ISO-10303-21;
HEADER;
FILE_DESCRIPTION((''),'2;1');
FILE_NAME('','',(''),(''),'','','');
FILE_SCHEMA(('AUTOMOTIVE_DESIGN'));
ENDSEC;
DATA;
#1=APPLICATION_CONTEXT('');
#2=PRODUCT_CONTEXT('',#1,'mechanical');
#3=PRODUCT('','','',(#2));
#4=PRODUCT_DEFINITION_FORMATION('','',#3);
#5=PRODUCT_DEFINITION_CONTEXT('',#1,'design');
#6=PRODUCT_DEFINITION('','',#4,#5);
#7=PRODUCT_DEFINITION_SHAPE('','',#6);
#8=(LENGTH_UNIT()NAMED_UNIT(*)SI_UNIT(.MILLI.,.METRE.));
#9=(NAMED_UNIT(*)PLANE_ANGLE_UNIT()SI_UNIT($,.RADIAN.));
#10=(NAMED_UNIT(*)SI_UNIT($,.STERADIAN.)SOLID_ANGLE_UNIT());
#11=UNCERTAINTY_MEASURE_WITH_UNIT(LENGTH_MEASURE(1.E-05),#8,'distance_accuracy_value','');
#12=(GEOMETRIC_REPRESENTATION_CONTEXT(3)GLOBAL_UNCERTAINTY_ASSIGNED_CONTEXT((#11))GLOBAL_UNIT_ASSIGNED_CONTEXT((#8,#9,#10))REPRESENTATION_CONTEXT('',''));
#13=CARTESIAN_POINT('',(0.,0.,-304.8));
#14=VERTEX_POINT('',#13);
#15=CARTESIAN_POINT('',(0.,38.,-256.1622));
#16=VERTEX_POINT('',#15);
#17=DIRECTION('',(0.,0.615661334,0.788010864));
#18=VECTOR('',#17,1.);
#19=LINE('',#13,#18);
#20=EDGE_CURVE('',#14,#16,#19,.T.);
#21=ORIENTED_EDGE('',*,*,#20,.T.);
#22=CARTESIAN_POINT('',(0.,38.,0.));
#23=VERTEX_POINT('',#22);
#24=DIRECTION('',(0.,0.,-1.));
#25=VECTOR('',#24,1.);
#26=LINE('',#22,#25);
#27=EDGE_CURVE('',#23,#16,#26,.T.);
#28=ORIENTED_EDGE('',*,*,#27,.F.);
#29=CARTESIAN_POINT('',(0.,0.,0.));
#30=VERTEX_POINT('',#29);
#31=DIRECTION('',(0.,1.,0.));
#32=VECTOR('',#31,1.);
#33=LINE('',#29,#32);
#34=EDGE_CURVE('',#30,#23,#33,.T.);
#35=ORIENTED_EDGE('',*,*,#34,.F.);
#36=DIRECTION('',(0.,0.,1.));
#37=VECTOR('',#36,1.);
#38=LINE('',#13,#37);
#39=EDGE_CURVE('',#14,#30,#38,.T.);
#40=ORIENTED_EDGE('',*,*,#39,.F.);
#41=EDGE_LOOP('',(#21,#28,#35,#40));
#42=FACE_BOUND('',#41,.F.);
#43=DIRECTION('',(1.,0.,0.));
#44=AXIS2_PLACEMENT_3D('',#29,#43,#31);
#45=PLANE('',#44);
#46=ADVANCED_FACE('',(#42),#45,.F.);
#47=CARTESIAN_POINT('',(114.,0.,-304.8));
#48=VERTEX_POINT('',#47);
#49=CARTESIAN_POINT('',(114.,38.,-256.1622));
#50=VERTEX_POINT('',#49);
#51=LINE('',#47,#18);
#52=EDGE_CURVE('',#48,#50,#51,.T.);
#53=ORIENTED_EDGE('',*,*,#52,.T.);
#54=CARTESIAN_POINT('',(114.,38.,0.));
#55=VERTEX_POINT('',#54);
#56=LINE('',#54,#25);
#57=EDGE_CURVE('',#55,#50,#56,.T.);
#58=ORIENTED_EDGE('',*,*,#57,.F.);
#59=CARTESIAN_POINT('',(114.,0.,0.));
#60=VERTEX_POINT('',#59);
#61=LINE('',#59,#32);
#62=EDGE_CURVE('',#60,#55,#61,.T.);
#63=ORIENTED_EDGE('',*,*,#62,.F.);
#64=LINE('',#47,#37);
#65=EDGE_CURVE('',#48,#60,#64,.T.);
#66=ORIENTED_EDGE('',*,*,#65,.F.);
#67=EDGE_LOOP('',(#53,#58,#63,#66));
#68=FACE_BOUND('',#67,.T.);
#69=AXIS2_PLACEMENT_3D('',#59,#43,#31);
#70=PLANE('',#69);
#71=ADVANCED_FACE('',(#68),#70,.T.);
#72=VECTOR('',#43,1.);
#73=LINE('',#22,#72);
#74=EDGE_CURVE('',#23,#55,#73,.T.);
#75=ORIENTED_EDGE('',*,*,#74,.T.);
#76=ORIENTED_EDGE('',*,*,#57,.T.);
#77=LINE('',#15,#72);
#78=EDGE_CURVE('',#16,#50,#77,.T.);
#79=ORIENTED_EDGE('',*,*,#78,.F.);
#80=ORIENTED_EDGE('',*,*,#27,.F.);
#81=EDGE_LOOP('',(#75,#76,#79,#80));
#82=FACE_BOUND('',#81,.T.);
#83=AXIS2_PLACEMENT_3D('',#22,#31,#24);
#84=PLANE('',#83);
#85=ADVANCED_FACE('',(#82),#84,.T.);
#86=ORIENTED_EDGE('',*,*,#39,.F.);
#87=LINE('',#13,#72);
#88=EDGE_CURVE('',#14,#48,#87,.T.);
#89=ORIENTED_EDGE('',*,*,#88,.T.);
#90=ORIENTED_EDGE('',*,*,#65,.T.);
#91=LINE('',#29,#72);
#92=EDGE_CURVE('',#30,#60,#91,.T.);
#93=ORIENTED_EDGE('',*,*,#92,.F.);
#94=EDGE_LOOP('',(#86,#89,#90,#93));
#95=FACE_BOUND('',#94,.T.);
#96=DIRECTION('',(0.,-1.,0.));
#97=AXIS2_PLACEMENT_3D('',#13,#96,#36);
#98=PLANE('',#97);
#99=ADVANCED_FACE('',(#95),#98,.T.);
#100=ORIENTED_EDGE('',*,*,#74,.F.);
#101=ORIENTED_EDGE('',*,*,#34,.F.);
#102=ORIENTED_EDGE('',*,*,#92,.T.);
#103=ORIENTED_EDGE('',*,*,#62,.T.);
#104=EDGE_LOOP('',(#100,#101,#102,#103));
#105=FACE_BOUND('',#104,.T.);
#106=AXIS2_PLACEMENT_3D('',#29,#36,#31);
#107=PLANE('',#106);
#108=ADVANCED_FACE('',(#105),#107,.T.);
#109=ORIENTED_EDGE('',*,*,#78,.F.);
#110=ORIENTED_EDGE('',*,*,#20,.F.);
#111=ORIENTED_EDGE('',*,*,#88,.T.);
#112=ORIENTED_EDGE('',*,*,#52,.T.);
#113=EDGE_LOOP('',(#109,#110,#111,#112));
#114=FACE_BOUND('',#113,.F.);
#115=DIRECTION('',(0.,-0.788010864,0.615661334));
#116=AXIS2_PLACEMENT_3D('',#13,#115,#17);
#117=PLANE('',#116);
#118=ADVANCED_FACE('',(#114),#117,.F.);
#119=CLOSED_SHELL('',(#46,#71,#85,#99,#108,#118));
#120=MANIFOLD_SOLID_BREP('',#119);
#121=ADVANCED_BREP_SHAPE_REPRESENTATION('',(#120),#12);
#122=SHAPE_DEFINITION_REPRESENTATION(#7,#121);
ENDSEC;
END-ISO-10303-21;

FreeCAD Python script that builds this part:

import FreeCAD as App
import Part
import Sketcher

V = App.Vector
Q = App.Units.Quantity

doc = App.newDocument("Part")
params = doc.addObject("Spreadsheet::Sheet", "Params")
for row, (alias, value) in enumerate([
    ("sketch1_height", "12 in"),
    ("pad1_length", "4.488189 in"),
], start=1):
    params.set(f"A{row}", alias)
    params.set(f"B{row}", "=" + value)
    params.setAlias(f"B{row}", alias)

body = doc.addObject("PartDesign::Body", "Body")

# Sketch on YZ plane
sketch1 = body.newObject("Sketcher::SketchObject", "Sketch")
sketch1.AttachmentSupport = (doc.getObject("YZ_Plane"), [""])
sketch1.MapMode = "FlatFace"
sketch1.addGeometry(Part.LineSegment(V(38, 0, 0), V(0, 0, 0)), False)
sketch1.addGeometry(Part.LineSegment(V(0, 0, 0), V(0, -305, 0)), False)
sketch1.addGeometry(Part.LineSegment(V(0, -305, 0), V(38, -256, 0)), False)
sketch1.addGeometry(Part.LineSegment(V(38, -256, 0), V(38, 0, 0)), False)
sketch1.addConstraint(Sketcher.Constraint("Coincident", 0, 2, 1, 1))
sketch1.addConstraint(Sketcher.Constraint("Coincident", 1, 2, 2, 1))
sketch1.addConstraint(Sketcher.Constraint("Coincident", 2, 2, 3, 1))
sketch1.addConstraint(Sketcher.Constraint("Coincident", 3, 2, 0, 1))
sketch1.addConstraint(Sketcher.Constraint("Horizontal", 0))
sketch1.addConstraint(Sketcher.Constraint("Vertical", 1))
sketch1.addConstraint(Sketcher.Constraint("Vertical", 3))
sketch1.addConstraint(Sketcher.Constraint("Coincident", 0, 2, -1, 1))
sketch1.addConstraint(Sketcher.Constraint("DistanceY", 1, 2, 1, 1, Q("12 in")))
sketch1.addConstraint(Sketcher.Constraint("Angle", 2, Q("52 deg")))
sketch1.addConstraint(Sketcher.Constraint("DistanceX", 0, 2, 0, 1, Q("38 mm")))
sketch1.setExpression("Constraints[8]", "Params.sketch1_height")
pad1 = body.newObject("PartDesign::Pad", "Pad")
pad1.Profile = sketch1
pad1.setExpression("Length", "Params.pad1_length")

doc.recompute()
